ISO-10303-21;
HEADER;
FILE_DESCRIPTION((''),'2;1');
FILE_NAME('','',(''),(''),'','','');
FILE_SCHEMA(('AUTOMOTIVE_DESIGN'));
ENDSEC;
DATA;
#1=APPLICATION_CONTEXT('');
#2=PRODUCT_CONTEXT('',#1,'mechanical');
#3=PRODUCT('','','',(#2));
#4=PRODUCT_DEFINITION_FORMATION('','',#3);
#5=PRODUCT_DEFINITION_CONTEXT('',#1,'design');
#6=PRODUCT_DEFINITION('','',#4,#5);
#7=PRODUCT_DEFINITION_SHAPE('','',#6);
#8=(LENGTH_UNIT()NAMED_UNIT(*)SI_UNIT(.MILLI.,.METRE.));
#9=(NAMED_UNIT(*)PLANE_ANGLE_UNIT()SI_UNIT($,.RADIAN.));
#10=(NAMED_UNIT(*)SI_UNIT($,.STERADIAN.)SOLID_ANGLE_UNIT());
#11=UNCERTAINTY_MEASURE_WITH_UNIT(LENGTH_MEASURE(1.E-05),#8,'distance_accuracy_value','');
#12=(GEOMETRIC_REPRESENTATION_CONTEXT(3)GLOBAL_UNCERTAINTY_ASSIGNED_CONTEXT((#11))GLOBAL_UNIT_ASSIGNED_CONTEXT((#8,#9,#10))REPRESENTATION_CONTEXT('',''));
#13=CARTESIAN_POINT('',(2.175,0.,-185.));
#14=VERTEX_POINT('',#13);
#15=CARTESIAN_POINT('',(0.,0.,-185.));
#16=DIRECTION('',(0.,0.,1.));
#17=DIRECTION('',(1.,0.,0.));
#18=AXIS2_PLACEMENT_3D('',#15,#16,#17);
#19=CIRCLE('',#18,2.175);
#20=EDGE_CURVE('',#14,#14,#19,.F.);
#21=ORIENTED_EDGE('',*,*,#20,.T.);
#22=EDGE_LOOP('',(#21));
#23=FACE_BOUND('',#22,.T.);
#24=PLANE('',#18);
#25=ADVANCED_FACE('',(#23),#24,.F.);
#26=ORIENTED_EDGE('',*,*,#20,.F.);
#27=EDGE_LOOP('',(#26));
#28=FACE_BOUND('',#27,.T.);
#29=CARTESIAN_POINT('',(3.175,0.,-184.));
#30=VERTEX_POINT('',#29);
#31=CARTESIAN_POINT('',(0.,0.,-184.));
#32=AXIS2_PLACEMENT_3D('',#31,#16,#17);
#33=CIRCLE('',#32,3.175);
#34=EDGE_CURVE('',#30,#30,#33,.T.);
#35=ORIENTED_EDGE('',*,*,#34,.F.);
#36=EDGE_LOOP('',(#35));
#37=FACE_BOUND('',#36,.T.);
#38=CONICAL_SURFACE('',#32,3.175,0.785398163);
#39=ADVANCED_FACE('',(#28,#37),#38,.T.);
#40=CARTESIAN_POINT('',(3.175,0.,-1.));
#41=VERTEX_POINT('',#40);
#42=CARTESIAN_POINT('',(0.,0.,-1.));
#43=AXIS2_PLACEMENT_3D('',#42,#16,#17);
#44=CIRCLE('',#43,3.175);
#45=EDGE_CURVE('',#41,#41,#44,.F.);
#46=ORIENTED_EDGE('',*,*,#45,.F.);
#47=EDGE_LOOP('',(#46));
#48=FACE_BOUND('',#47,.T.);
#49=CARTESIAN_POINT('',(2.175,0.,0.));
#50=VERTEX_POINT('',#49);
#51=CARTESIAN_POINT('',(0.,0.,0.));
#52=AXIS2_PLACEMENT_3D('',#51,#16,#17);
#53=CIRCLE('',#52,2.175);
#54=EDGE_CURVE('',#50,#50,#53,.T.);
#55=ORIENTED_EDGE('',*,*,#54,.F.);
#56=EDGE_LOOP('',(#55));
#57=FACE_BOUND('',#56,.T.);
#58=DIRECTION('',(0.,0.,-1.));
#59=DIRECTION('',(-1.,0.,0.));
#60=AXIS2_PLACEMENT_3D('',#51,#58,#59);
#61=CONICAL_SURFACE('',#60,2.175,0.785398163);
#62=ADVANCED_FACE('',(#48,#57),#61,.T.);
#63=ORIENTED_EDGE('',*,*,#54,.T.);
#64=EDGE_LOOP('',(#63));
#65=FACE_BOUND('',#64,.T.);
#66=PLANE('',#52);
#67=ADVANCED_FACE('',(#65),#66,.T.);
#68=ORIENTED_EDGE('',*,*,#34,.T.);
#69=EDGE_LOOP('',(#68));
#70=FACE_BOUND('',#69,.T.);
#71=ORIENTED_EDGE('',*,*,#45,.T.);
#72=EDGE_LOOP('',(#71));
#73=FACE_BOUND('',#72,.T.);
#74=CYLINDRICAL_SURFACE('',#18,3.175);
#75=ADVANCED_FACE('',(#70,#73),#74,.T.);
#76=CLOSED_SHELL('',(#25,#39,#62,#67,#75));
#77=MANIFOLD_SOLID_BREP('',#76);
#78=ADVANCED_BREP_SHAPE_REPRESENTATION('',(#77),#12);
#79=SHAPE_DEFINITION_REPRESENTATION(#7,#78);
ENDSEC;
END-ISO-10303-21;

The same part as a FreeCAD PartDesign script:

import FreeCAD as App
import Part
import Sketcher
from FreeCAD import Vector


def edges_at(feature, points):
    """Names of the edges that pass closest to the given points."""
    edges = feature.Shape.Edges
    near = lambda p: min(range(len(edges)), key=lambda i: edges[i].distToShape(Part.Vertex(*p))[0])
    return sorted({f"Edge{near(p) + 1}" for p in points})

doc = App.newDocument("Part")
body = doc.addObject("PartDesign::Body", "Body")

# Sketch on XY plane
sketch1 = doc.addObject("Sketcher::SketchObject", "Sketch")
body.addObject(sketch1)
sketch1.AttachmentSupport = (doc.XY_Plane, [""])
sketch1.MapMode = "FlatFace"
sketch1.addGeometry(Part.Circle(Vector(0, 0, 0), Vector(0, 0, 1), 3.2), False)
sketch1.addConstraint(Sketcher.Constraint("Coincident", 0, 3, -1, 1))
sketch1.addConstraint(Sketcher.Constraint("Diameter", 0, 6.35))
pad1 = doc.addObject("PartDesign::Pad", "Pad")
body.addObject(pad1)
pad1.Profile = sketch1
pad1.Length = 185
pad1.Reversed = True
doc.recompute()

chamfer = doc.addObject("PartDesign::Chamfer", "Chamfer")
body.addObject(chamfer)
chamfer.Base = (pad1, edges_at(pad1, [(-3.175, 0, 0), (-3.175, 0, -185)]))
chamfer.Size = 1

doc.recompute()
